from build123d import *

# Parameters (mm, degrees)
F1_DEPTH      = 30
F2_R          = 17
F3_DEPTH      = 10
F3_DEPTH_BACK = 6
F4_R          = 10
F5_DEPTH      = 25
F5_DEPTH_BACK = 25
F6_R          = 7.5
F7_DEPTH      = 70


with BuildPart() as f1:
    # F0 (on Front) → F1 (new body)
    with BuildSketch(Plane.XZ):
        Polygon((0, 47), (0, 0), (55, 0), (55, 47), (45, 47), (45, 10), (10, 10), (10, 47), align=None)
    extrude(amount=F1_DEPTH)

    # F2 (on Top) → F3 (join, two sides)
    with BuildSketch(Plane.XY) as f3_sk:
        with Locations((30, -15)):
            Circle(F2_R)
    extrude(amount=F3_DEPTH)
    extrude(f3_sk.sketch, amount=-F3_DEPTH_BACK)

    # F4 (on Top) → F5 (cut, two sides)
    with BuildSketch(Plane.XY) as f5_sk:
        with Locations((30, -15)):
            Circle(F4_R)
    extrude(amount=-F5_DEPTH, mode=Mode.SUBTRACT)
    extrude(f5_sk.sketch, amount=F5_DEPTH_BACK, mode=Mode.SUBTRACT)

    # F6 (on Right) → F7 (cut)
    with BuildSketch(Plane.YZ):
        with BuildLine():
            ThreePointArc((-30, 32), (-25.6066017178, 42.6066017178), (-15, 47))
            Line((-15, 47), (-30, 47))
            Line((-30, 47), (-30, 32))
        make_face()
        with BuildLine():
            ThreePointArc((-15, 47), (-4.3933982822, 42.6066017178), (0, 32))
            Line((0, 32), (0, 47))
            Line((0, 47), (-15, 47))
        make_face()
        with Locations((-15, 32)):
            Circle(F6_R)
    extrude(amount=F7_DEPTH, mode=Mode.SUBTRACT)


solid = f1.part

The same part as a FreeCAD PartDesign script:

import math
import FreeCAD as App
import Part
import Sketcher
from FreeCAD import Vector
Q = App.Units.Quantity

doc = App.newDocument("Part")
params = doc.addObject("Spreadsheet::Sheet", "Params")
for row, (alias, value) in enumerate([
    ("sketch1_width", "55 mm"),
    ("sketch1_width2", "10 mm"),
    ("sketch1_height", "47 mm"),
    ("sketch1_height2", "37 mm"),
    ("pad1_length", "30 mm"),
    ("sketch2_diameter", "34 mm"),
    ("pad2_length", "10 mm"),
    ("pad2_length2", "6 mm"),
    ("sketch3_diameter", "20 mm"),
    ("sketch4_diameter", "15 mm"),
    ("sketch4_radius", "15 mm"),
    ("pocket2_length", "70 mm"),
], start=1):
    params.set(f"A{row}", alias)
    params.set(f"B{row}", "=" + value)
    params.setAlias(f"B{row}", alias)

body = doc.addObject("PartDesign::Body", "Body")

# Sketch on XZ plane
sketch1 = doc.addObject("Sketcher::SketchObject", "Sketch")
body.addObject(sketch1)
sketch1.AttachmentSupport = (doc.XZ_Plane, [""])
sketch1.MapMode = "FlatFace"
sketch1.addGeometry([
    Part.LineSegment(Vector(0, 47, 0), Vector(0, 0, 0)),  # 0
    Part.LineSegment(Vector(0, 0, 0), Vector(55, 0, 0)),  # 1
    Part.LineSegment(Vector(55, 0, 0), Vector(55, 47, 0)),  # 2
    Part.LineSegment(Vector(55, 47, 0), Vector(45, 47, 0)),  # 3
    Part.LineSegment(Vector(45, 47, 0), Vector(45, 10, 0)),  # 4
    Part.LineSegment(Vector(45, 10, 0), Vector(10, 10, 0)),  # 5
    Part.LineSegment(Vector(10, 10, 0), Vector(10, 47, 0)),  # 6
    Part.LineSegment(Vector(10, 47, 0), Vector(0, 47, 0)),  # 7
], False)
sketch1.addConstraint([
    Sketcher.Constraint("Coincident", 0, 2, 1, 1),
    Sketcher.Constraint("Coincident", 1, 2, 2, 1),
    Sketcher.Constraint("Coincident", 2, 2, 3, 1),
    Sketcher.Constraint("Coincident", 3, 2, 4, 1),
    Sketcher.Constraint("Coincident", 4, 2, 5, 1),
    Sketcher.Constraint("Coincident", 5, 2, 6, 1),
    Sketcher.Constraint("Coincident", 6, 2, 7, 1),
    Sketcher.Constraint("Coincident", 7, 2, 0, 1),
    Sketcher.Constraint("Vertical", 0),
    Sketcher.Constraint("Horizontal", 1),
    Sketcher.Constraint("Vertical", 2),
    Sketcher.Constraint("Horizontal", 3),
    Sketcher.Constraint("Vertical", 4),
    Sketcher.Constraint("Horizontal", 5),
    Sketcher.Constraint("Vertical", 6),
    Sketcher.Constraint("Horizontal", 7),
    Sketcher.Constraint("Coincident", 0, 2, -1, 1),
    Sketcher.Constraint("Horizontal", 3, 2, 6, 2),
    Sketcher.Constraint("Equal", 3, 7),
    Sketcher.Constraint("DistanceX", 1, 1, 1, 2, Q("55 mm")),
    Sketcher.Constraint("DistanceX", 3, 2, 3, 1, Q("10 mm")),
    Sketcher.Constraint("DistanceY", 0, 2, 0, 1, Q("47 mm")),
    Sketcher.Constraint("DistanceY", 4, 2, 4, 1, Q("37 mm")),
])
sketch1.setExpression("Constraints[19]", "Params.sketch1_width")
sketch1.setExpression("Constraints[20]", "Params.sketch1_width2")
sketch1.setExpression("Constraints[21]", "Params.sketch1_height")
sketch1.setExpression("Constraints[22]", "Params.sketch1_height2")
pad1 = doc.addObject("PartDesign::Pad", "Pad")
body.addObject(pad1)
pad1.Profile = sketch1
pad1.setExpression("Length", "Params.pad1_length")

# Sketch on XY plane
sketch2 = doc.addObject("Sketcher::SketchObject", "Sketch001")
body.addObject(sketch2)
sketch2.AttachmentSupport = (doc.XY_Plane, [""])
sketch2.MapMode = "FlatFace"
sketch2.addGeometry(Part.Circle(Vector(30, -15, 0), Vector(0, 0, 1), 17), False)
sketch2.addConstraint([
    Sketcher.Constraint("Diameter", 0, Q("34 mm")),
    Sketcher.Constraint("DistanceX", -1, 1, 0, 3, Q("30 mm")),
    Sketcher.Constraint("DistanceY", 0, 3, -1, 1, Q("15 mm")),
])
sketch2.setExpression("Constraints[0]", "Params.sketch2_diameter")
pad2 = doc.addObject("PartDesign::Pad", "Pad001")
body.addObject(pad2)
pad2.Profile = sketch2
pad2.Type = "TwoLengths"
pad2.setExpression("Length", "Params.pad2_length")
pad2.setExpression("Length2", "Params.pad2_length2")

# Sketch on XY plane
sketch3 = doc.addObject("Sketcher::SketchObject", "Sketch002")
body.addObject(sketch3)
sketch3.AttachmentSupport = (doc.XY_Plane, [""])
sketch3.MapMode = "FlatFace"
sketch3.addGeometry(Part.Circle(Vector(30, -15, 0), Vector(0, 0, 1), 10), False)
sketch3.addConstraint([
    Sketcher.Constraint("Diameter", 0, Q("20 mm")),
    Sketcher.Constraint("DistanceX", -1, 1, 0, 3, Q("30 mm")),
    Sketcher.Constraint("DistanceY", 0, 3, -1, 1, Q("15 mm")),
])
sketch3.setExpression("Constraints[0]", "Params.sketch3_diameter")
pocket1 = doc.addObject("PartDesign::Pocket", "Pocket")
body.addObject(pocket1)
pocket1.Profile = sketch3
pocket1.Type = "ThroughAll"
pocket1.Midplane = True

# Sketch on YZ plane
sketch4 = doc.addObject("Sketcher::SketchObject", "Sketch003")
body.addObject(sketch4)
sketch4.AttachmentSupport = (doc.YZ_Plane, [""])
sketch4.MapMode = "FlatFace"
sketch4.addGeometry([
    Part.ArcOfCircle(Part.Circle(Vector(-15, 32, 0), Vector(0, 0, 1), 15), math.radians(90), math.radians(180)),  # 0
    Part.LineSegment(Vector(-15, 47, 0), Vector(-30, 47, 0)),  # 1
    Part.LineSegment(Vector(-30, 47, 0), Vector(-30, 32, 0)),  # 2
    Part.ArcOfCircle(Part.Circle(Vector(-15, 32, 0), Vector(0, 0, 1), 15), math.radians(0), math.radians(90)),  # 3
    Part.LineSegment(Vector(0, 32, 0), Vector(0, 47, 0)),  # 4
    Part.LineSegment(Vector(0, 47, 0), Vector(-15, 47, 0)),  # 5
    Part.Circle(Vector(-15, 32, 0), Vector(0, 0, 1), 8),  # 6
], False)
sketch4.addConstraint([
    Sketcher.Constraint("Tangent", 0, 1, 1, 1),
    Sketcher.Constraint("Coincident", 1, 2, 2, 1),
    Sketcher.Constraint("Tangent", 2, 2, 0, 2),
    Sketcher.Constraint("Tangent", 3, 1, 4, 1),
    Sketcher.Constraint("Coincident", 4, 2, 5, 1),
    Sketcher.Constraint("Tangent", 5, 2, 3, 2),
    Sketcher.Constraint("Horizontal", 1),
    Sketcher.Constraint("Vertical", 2),
    Sketcher.Constraint("Vertical", 4),
    Sketcher.Constraint("Horizontal", 5),
    Sketcher.Constraint("Coincident", 3, 3, 0, 3),
    Sketcher.Constraint("Coincident", 6, 3, 0, 3),
    Sketcher.Constraint("Equal", 0, 3),
    Sketcher.Constraint("PointOnObject", 3, 1, -2),
    Sketcher.Constraint("Diameter", 6, Q("15 mm")),
    Sketcher.Constraint("Radius", 0, Q("15 mm")),
    Sketcher.Constraint("DistanceY", -1, 1, 0, 3, Q("32 mm")),
])
sketch4.setExpression("Constraints[14]", "Params.sketch4_diameter")
sketch4.setExpression("Constraints[15]", "Params.sketch4_radius")
pocket2 = doc.addObject("PartDesign::Pocket", "Pocket001")
body.addObject(pocket2)
pocket2.Profile = sketch4
pocket2.setExpression("Length", "Params.pocket2_length")
pocket2.Reversed = True

doc.recompute()
